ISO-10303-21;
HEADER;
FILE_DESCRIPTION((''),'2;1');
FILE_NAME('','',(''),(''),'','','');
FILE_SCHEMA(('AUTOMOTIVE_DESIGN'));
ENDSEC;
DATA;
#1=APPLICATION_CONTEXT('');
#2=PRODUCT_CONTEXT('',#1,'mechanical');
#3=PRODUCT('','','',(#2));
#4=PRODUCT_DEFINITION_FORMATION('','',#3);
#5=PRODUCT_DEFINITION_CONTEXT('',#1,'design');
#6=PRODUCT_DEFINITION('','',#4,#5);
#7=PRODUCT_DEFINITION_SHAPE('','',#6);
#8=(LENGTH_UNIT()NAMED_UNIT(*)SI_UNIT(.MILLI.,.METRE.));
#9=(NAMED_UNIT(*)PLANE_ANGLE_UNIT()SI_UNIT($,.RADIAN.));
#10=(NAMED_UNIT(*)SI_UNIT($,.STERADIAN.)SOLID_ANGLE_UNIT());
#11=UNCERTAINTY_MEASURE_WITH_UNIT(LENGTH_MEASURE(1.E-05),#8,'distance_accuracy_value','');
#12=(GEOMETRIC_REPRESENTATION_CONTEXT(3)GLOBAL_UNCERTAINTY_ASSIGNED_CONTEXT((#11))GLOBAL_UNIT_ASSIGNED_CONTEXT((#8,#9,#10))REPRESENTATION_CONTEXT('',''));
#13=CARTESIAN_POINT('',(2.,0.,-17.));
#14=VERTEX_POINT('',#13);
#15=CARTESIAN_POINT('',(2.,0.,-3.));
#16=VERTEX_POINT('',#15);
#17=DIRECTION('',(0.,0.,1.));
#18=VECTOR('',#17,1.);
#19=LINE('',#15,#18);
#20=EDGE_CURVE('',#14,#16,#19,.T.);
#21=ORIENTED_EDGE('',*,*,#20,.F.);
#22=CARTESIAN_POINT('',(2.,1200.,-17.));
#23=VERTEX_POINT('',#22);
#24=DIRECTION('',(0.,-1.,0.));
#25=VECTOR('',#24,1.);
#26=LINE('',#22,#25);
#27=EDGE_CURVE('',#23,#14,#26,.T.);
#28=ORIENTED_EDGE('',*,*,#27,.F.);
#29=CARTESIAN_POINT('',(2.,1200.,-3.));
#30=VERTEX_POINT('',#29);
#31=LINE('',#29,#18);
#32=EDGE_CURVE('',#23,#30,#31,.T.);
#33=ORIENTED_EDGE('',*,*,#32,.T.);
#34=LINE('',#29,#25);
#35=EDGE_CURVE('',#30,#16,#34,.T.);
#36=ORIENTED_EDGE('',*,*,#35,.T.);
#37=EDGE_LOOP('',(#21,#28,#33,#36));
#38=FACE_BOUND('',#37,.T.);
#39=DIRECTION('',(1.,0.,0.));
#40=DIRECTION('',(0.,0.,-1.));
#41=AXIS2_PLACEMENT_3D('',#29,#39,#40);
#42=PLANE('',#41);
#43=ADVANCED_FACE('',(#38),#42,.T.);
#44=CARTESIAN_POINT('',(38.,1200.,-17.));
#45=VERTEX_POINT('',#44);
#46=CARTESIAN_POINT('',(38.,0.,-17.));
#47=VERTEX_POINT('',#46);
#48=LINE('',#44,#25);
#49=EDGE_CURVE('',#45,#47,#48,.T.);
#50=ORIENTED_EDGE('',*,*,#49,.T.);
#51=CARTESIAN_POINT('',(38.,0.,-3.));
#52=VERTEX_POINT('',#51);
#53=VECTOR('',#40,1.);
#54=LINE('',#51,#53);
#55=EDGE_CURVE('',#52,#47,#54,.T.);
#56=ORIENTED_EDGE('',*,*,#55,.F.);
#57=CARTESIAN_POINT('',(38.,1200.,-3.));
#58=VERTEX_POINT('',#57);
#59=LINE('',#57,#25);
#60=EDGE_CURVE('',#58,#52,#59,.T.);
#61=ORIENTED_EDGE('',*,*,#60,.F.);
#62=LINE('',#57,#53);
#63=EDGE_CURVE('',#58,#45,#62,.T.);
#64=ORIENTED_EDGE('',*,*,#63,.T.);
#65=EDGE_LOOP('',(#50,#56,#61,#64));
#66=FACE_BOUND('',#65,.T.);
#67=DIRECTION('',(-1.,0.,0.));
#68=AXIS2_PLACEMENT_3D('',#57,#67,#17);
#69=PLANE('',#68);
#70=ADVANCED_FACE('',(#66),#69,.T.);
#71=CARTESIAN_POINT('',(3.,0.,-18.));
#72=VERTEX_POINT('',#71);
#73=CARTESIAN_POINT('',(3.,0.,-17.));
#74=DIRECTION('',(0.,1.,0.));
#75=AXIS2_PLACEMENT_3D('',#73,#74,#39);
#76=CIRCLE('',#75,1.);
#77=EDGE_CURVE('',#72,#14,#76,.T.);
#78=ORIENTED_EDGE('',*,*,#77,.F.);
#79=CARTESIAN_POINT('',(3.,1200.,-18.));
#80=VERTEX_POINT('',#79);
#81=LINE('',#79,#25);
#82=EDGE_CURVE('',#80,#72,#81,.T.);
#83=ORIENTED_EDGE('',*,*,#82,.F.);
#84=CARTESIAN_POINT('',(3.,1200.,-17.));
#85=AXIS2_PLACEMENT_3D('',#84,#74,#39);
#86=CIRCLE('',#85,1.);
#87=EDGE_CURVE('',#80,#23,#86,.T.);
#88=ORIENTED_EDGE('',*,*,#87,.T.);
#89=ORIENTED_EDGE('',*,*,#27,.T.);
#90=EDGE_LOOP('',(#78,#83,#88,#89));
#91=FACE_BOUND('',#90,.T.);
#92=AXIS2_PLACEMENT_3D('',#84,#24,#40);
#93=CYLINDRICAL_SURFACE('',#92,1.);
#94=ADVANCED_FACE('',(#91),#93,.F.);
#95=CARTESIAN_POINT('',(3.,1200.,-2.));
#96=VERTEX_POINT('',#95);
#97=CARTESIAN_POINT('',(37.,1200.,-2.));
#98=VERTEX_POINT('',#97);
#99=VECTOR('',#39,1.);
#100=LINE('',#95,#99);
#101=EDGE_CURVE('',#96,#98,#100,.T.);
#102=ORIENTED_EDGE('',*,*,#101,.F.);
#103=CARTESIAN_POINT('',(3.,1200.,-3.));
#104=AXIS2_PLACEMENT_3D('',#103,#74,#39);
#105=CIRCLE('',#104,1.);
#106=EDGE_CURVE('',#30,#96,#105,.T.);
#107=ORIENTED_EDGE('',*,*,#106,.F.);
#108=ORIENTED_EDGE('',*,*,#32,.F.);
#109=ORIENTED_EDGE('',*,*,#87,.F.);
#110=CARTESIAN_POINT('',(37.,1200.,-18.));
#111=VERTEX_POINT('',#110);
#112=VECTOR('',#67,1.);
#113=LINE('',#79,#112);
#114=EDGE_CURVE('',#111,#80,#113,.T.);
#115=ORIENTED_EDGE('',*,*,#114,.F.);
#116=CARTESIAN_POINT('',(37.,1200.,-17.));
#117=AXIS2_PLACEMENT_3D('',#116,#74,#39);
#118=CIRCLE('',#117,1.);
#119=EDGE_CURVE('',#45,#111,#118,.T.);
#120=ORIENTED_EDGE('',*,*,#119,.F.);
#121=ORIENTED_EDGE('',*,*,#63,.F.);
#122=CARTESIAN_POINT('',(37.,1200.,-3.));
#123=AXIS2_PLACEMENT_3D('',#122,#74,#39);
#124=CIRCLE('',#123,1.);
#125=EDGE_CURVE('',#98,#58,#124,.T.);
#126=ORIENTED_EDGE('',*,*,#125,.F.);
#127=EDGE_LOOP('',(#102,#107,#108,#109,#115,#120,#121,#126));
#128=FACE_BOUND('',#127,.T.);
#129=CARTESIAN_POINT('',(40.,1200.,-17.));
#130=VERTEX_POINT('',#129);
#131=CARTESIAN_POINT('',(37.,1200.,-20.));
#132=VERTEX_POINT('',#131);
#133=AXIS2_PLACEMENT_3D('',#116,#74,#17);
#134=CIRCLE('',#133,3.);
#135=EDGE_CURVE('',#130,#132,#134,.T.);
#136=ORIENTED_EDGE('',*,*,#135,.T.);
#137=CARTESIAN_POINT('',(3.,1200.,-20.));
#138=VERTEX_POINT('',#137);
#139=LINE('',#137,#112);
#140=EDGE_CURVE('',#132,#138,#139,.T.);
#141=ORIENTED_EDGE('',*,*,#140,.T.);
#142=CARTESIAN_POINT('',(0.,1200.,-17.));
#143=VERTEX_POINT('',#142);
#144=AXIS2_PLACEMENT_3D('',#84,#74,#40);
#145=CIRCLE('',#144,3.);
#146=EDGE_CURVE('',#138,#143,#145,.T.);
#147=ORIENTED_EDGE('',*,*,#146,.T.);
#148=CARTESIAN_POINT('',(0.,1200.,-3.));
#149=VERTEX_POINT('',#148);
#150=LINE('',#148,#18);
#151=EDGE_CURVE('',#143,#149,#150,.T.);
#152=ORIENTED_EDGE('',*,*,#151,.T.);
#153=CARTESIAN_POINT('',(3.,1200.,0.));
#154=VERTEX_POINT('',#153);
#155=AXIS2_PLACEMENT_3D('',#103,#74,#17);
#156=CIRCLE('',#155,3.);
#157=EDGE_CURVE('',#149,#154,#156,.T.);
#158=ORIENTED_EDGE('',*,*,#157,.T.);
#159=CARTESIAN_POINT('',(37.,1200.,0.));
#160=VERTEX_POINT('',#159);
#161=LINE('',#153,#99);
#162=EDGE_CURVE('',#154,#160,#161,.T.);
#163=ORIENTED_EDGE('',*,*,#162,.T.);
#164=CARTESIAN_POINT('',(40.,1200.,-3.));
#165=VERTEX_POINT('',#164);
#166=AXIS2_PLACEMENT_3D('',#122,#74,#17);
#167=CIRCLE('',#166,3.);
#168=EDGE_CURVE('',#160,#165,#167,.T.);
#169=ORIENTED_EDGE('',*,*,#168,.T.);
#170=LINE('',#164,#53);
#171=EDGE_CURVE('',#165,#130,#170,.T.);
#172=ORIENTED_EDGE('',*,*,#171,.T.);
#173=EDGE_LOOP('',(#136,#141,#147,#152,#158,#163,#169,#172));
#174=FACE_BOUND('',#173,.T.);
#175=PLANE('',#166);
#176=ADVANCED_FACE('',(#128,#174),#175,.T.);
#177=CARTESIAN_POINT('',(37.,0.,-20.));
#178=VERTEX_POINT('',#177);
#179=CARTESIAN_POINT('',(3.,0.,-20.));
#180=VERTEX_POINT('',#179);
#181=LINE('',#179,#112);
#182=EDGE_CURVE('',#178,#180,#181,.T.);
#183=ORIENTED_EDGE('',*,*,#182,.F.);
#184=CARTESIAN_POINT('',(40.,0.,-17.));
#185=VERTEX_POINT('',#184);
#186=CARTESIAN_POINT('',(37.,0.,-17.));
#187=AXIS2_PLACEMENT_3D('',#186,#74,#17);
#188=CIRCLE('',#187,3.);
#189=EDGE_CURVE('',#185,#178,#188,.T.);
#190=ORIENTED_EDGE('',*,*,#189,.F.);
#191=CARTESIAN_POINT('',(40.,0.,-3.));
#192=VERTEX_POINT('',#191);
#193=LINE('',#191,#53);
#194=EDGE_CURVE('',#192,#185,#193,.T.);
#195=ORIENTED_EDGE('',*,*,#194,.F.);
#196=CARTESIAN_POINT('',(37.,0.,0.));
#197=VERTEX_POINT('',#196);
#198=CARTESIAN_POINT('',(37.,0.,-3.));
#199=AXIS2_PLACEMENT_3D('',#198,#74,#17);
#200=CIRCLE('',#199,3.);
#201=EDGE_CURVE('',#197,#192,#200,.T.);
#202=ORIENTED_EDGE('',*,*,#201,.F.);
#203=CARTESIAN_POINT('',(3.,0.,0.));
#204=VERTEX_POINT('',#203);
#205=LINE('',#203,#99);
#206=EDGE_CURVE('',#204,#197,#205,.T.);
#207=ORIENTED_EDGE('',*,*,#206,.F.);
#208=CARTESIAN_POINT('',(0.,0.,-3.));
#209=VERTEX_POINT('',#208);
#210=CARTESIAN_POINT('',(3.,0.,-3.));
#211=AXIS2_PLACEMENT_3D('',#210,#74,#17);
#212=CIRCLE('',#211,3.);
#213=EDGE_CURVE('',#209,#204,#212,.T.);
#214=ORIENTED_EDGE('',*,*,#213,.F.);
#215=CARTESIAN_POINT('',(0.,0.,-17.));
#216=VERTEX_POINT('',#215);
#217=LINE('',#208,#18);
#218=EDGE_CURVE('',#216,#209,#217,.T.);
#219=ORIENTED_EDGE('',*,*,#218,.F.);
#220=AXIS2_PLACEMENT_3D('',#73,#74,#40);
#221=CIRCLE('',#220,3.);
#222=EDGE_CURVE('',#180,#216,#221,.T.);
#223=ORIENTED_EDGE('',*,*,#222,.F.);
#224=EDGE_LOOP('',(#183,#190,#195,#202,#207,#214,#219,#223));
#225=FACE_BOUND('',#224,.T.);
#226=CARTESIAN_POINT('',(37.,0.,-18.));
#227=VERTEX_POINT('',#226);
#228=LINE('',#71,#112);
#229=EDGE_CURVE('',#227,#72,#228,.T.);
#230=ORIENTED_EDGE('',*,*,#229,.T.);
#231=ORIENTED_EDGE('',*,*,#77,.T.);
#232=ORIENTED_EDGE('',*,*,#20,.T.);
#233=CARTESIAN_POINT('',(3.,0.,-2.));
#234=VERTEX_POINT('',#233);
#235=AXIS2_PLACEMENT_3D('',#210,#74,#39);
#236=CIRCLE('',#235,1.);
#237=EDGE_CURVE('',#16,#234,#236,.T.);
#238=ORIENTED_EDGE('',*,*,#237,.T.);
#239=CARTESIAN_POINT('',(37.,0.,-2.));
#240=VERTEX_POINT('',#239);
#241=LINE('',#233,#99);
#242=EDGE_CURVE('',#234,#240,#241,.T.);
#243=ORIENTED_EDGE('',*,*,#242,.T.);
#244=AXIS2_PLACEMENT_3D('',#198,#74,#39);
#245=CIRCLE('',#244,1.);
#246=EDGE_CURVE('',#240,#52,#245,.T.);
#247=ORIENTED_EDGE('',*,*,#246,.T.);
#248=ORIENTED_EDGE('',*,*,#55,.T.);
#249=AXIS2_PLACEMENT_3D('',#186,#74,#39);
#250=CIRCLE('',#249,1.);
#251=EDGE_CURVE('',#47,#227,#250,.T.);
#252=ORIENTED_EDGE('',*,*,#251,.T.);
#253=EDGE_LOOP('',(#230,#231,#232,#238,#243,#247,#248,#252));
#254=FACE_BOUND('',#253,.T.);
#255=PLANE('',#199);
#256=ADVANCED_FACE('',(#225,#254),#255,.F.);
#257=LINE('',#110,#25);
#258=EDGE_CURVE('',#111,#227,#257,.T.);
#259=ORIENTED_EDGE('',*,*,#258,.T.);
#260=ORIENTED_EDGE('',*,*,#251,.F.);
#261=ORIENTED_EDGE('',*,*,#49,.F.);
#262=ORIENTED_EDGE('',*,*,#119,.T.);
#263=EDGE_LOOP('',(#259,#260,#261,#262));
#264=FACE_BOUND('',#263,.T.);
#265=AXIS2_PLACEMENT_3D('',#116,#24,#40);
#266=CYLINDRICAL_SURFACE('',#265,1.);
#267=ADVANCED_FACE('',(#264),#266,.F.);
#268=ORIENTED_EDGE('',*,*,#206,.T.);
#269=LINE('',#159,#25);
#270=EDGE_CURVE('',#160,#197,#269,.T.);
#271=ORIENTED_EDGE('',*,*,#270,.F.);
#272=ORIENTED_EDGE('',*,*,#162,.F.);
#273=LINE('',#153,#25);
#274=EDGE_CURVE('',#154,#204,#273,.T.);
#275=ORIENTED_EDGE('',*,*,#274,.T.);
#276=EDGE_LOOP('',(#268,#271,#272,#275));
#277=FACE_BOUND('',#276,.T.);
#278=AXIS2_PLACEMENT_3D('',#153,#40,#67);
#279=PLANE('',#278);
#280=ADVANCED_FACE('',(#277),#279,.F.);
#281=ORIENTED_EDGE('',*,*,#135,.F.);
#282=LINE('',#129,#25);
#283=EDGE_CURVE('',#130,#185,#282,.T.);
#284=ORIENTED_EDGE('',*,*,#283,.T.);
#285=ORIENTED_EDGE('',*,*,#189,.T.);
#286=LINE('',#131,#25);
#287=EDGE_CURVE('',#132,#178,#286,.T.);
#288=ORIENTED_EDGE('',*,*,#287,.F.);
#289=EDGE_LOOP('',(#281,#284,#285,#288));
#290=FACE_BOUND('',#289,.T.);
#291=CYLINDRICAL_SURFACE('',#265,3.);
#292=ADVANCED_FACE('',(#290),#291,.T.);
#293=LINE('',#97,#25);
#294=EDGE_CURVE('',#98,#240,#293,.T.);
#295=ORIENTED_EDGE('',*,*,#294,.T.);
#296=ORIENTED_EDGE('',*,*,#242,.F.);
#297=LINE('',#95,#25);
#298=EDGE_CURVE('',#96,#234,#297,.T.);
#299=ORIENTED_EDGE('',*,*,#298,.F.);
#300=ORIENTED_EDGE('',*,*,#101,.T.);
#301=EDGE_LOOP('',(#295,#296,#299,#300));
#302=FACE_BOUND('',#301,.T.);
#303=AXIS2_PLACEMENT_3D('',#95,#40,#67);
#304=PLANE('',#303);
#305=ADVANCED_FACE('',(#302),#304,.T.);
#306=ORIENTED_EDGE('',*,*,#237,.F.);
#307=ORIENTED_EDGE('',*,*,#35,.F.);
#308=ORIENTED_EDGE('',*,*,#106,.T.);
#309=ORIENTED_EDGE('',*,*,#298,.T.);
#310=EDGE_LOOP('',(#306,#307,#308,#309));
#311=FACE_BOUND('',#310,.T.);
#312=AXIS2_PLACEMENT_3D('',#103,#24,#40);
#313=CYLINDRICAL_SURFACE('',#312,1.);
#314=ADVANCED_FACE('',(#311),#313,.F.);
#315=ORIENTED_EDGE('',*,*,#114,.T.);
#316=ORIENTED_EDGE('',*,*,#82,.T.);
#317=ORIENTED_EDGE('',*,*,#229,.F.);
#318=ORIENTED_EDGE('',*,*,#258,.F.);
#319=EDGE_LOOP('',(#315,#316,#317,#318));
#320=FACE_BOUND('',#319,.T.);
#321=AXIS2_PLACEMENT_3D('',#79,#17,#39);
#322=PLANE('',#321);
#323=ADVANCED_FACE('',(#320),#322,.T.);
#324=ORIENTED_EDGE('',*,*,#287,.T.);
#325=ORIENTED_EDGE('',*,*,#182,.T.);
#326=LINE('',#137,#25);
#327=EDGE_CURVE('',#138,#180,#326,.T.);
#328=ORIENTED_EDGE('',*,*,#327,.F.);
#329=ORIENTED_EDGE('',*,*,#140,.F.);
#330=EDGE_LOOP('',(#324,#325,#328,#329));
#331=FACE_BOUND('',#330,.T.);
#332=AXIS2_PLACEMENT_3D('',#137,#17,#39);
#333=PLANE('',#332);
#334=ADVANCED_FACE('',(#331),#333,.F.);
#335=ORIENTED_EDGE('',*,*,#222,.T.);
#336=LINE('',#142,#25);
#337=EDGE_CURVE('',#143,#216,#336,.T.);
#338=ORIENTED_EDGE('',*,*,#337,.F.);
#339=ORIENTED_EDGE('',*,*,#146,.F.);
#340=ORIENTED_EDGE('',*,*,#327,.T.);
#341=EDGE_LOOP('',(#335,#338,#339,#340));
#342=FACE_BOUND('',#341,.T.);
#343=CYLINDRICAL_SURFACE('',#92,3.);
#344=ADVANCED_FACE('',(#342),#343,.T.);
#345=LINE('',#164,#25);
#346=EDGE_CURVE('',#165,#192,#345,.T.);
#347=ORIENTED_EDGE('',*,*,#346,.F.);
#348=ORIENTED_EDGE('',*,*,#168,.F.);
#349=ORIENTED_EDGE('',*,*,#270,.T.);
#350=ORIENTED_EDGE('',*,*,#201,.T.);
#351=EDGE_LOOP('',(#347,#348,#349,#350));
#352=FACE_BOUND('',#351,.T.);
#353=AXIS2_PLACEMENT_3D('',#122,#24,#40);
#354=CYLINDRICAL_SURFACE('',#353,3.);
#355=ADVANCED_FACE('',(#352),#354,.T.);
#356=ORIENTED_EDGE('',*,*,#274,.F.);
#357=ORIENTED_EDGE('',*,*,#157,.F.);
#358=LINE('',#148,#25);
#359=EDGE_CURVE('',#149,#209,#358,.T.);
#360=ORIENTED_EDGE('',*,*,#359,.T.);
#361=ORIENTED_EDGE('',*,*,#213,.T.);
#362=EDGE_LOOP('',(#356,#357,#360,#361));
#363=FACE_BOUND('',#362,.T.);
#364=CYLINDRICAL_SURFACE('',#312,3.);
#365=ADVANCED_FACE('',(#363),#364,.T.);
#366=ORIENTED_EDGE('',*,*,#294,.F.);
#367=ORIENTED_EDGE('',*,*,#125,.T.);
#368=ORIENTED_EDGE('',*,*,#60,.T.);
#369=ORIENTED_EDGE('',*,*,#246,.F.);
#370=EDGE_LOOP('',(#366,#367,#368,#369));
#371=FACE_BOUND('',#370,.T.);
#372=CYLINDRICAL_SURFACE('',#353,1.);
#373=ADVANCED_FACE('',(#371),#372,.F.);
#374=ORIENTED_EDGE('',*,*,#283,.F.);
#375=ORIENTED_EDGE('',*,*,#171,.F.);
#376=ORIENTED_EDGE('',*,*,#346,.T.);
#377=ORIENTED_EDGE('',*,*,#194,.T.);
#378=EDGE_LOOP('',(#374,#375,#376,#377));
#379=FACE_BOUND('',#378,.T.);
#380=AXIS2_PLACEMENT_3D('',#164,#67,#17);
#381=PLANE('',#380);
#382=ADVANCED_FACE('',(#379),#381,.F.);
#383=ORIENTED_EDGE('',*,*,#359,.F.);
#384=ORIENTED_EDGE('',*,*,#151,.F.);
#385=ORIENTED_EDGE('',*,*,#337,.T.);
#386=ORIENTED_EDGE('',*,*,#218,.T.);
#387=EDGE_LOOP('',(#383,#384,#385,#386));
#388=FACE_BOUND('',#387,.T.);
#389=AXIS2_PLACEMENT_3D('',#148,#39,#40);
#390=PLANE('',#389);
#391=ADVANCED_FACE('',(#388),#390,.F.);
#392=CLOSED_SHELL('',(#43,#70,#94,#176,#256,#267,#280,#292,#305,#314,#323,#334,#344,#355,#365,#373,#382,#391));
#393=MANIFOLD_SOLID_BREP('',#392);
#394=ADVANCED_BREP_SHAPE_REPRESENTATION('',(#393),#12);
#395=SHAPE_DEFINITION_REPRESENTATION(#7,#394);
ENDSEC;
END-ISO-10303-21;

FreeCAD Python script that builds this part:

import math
import FreeCAD as App
import Part
import Sketcher

V = App.Vector

doc = App.newDocument("Part")
body = doc.addObject("PartDesign::Body", "Body")

sketch1 = doc.addObject("Sketcher::SketchObject", "Sketch")
body.addObject(sketch1)
sketch1.AttachmentSupport = (doc.XZ_Plane, [""])
sketch1.MapMode = "FlatFace"
sketch1.addGeometry([
    Part.LineSegment(V(3, 0, 0), V(37, 0, 0)),
    Part.ArcOfCircle(Part.Circle(V(37, -3, 0), V(0, 0, 1), 3), math.radians(0), math.radians(90)),
    Part.LineSegment(V(40, -3, 0), V(40, -17, 0)),
    Part.ArcOfCircle(Part.Circle(V(37, -17, 0), V(0, 0, 1), 3), math.radians(-90), math.radians(0)),
    Part.LineSegment(V(37, -20, 0), V(3, -20, 0)),
    Part.ArcOfCircle(Part.Circle(V(3, -17, 0), V(0, 0, 1), 3), math.radians(180), math.radians(270)),
    Part.LineSegment(V(0, -17, 0), V(0, -3, 0)),
    Part.ArcOfCircle(Part.Circle(V(3, -3, 0), V(0, 0, 1), 3), math.radians(90), math.radians(180)),
    Part.LineSegment(V(37, -2, 0), V(3, -2, 0)),
    Part.ArcOfCircle(Part.Circle(V(3, -3, 0), V(0, 0, 1), 1), math.radians(90), math.radians(180)),
    Part.LineSegment(V(2, -3, 0), V(2, -17, 0)),
    Part.ArcOfCircle(Part.Circle(V(3, -17, 0), V(0, 0, 1), 1), math.radians(-180), math.radians(-90)),
    Part.LineSegment(V(3, -18, 0), V(37, -18, 0)),
    Part.ArcOfCircle(Part.Circle(V(37, -17, 0), V(0, 0, 1), 1), math.radians(-90), math.radians(0)),
    Part.LineSegment(V(38, -17, 0), V(38, -3, 0)),
    Part.ArcOfCircle(Part.Circle(V(37, -3, 0), V(0, 0, 1), 1), math.radians(0), math.radians(90)),
], False)
sketch1.addConstraint([
    Sketcher.Constraint("Tangent", 0, 2, 1, 2),
    Sketcher.Constraint("Tangent", 1, 1, 2, 1),
    Sketcher.Constraint("Tangent", 2, 2, 3, 2),
    Sketcher.Constraint("Tangent", 3, 1, 4, 1),
    Sketcher.Constraint("Tangent", 4, 2, 5, 2),
    Sketcher.Constraint("Tangent", 5, 1, 6, 1),
    Sketcher.Constraint("Tangent", 6, 2, 7, 2),
    Sketcher.Constraint("Tangent", 7, 1, 0, 1),
    Sketcher.Constraint("Tangent", 8, 2, 9, 1),
    Sketcher.Constraint("Tangent", 9, 2, 10, 1),
    Sketcher.Constraint("Tangent", 10, 2, 11, 1),
    Sketcher.Constraint("Tangent", 11, 2, 12, 1),
    Sketcher.Constraint("Tangent", 12, 2, 13, 1),
    Sketcher.Constraint("Tangent", 13, 2, 14, 1),
    Sketcher.Constraint("Tangent", 14, 2, 15, 1),
    Sketcher.Constraint("Tangent", 15, 2, 8, 1),
    Sketcher.Constraint("Horizontal", 0),
    Sketcher.Constraint("Vertical", 2),
    Sketcher.Constraint("Horizontal", 4),
    Sketcher.Constraint("Vertical", 6),
    Sketcher.Constraint("Horizontal", 8),
    Sketcher.Constraint("Vertical", 10),
    Sketcher.Constraint("Horizontal", 12),
    Sketcher.Constraint("Vertical", 14),
    Sketcher.Constraint("Coincident", 9, 3, 7, 3),
    Sketcher.Constraint("Coincident", 11, 3, 5, 3),
    Sketcher.Constraint("Coincident", 13, 3, 3, 3),
    Sketcher.Constraint("Equal", 1, 3),
    Sketcher.Constraint("Equal", 3, 5),
    Sketcher.Constraint("Equal", 5, 7),
    Sketcher.Constraint("Equal", 13, 15),
    Sketcher.Constraint("PointOnObject", 0, 2, -1),
    Sketcher.Constraint("PointOnObject", 5, 1, -2),
    Sketcher.Constraint("Radius", 1, 3.0),
    Sketcher.Constraint("Radius", 9, 1.0),
    Sketcher.Constraint("DistanceX", 0, 1, 0, 2, 34.0),
    Sketcher.Constraint("DistanceY", 2, 2, 2, 1, 14.0),
])
pad1 = doc.addObject("PartDesign::Pad", "Pad")
body.addObject(pad1)
pad1.Profile = sketch1
pad1.Length = 1200
pad1.Reversed = True

doc.recompute()
